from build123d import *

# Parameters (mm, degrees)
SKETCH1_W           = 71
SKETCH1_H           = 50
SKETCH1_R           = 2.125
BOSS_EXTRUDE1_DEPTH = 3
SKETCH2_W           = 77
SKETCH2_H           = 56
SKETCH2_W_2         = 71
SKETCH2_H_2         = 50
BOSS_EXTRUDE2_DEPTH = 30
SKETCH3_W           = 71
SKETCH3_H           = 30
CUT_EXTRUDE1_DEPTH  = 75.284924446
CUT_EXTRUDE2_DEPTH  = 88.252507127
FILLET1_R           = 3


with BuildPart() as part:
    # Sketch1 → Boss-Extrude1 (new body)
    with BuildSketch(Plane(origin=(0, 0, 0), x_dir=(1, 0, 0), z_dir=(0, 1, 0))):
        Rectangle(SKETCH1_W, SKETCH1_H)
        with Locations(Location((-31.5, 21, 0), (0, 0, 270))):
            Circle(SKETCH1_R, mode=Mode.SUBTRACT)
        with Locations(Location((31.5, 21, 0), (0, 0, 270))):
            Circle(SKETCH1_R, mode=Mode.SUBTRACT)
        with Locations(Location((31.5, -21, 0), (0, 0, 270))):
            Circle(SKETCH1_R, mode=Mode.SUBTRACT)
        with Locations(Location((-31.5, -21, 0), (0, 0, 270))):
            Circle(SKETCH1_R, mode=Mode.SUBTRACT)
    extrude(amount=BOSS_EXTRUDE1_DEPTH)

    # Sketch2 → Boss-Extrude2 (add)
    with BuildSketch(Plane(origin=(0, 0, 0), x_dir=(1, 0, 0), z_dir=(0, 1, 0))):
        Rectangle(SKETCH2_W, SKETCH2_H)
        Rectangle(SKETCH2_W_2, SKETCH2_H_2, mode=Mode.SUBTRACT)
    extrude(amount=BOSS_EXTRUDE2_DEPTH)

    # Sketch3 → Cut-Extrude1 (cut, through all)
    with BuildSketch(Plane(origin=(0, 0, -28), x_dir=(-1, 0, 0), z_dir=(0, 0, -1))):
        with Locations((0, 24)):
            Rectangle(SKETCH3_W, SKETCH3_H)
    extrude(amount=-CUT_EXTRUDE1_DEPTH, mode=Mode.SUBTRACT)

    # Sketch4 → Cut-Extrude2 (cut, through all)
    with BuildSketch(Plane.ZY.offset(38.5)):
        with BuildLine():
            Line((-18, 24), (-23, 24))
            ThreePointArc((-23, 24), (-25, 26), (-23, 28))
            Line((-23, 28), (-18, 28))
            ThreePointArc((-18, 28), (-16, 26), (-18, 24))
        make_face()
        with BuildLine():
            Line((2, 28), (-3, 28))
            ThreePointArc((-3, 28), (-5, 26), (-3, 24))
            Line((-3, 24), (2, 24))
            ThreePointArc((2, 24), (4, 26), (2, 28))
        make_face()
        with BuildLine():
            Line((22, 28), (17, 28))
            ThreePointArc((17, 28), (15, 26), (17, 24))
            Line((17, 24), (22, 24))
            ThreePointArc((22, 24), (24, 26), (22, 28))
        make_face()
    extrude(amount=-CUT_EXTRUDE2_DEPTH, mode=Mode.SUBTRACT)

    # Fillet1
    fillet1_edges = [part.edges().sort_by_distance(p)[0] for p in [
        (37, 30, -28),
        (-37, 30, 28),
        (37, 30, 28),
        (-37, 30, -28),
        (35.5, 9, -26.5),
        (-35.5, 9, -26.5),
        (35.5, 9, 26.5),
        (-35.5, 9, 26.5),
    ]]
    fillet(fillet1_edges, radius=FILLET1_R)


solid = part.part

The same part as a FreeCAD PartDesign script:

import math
import FreeCAD as App
import Part
import Sketcher
from FreeCAD import Vector


def edges_at(feature, points):
    """Names of the edges that pass closest to the given points."""
    edges = feature.Shape.Edges
    near = lambda p: min(range(len(edges)), key=lambda i: edges[i].distToShape(Part.Vertex(*p))[0])
    return sorted({f"Edge{near(p) + 1}" for p in points})


def add_polygon(sketch, points):
    """Adds a closed chain of lines whose ends are joined by coincident constraints."""
    first, n = sketch.GeometryCount, len(points)
    for a, b in zip(points, points[1:] + points[:1]):
        sketch.addGeometry(Part.LineSegment(App.Vector(*a, 0), App.Vector(*b, 0)), False)
    for i in range(n):
        sketch.addConstraint(Sketcher.Constraint("Coincident", first + i, 2, first + (i + 1) % n, 1))

doc = App.newDocument("Part")
params = doc.addObject("Spreadsheet::Sheet", "Params")
for row, (alias, value) in enumerate([
    ("sketch1_diameter", "4.25 mm"),
    ("sketch1_width", "71 mm"),
    ("sketch1_height", "50 mm"),
    ("pad1_length", "3 mm"),
    ("sketch2_width", "77 mm"),
    ("sketch2_width2", "71 mm"),
    ("sketch2_height", "56 mm"),
    ("sketch2_height2", "50 mm"),
    ("pad2_length", "30 mm"),
    ("sketch3_width", "71 mm"),
    ("sketch3_height", "30 mm"),
    ("sketch4_radius", "2 mm"),
    ("sketch4_height", "5 mm"),
    ("fillet_radius", "3 mm"),
], start=1):
    params.set(f"A{row}", alias)
    params.set(f"B{row}", "=" + value)
    params.setAlias(f"B{row}", alias)

body = doc.addObject("PartDesign::Body", "Body")

sketch1 = body.newObject("Sketcher::SketchObject", "Sketch")
sketch1.AttachmentSupport = (doc.getObject("XZ_Plane"), [""])
sketch1.MapMode = "FlatFace"
add_polygon(sketch1, [(-35.5, -25), (-35.5, 25), (35.5, 25), (35.5, -25)])
sketch1.addGeometry(Part.Circle(Vector(-31.5, 21, 0), Vector(0, 0, 1), 2.125), False)
sketch1.addGeometry(Part.Circle(Vector(31.5, 21, 0), Vector(0, 0, 1), 2.125), False)
sketch1.addGeometry(Part.Circle(Vector(-31.5, -21, 0), Vector(0, 0, 1), 2.125), False)
sketch1.addGeometry(Part.Circle(Vector(31.5, -21, 0), Vector(0, 0, 1), 2.125), False)
sketch1.addConstraint([
    Sketcher.Constraint("Vertical", 0),
    Sketcher.Constraint("Horizontal", 1),
    Sketcher.Constraint("Vertical", 2),
    Sketcher.Constraint("Horizontal", 3),
    Sketcher.Constraint("Equal", 4, 5),
    Sketcher.Constraint("Equal", 5, 6),
    Sketcher.Constraint("Equal", 6, 7),
    Sketcher.Constraint("Symmetric", 5, 3, 6, 3, -1, 1),
    Sketcher.Constraint("Symmetric", 4, 3, 7, 3, -1, 1),
    Sketcher.Constraint("Symmetric", 0, 2, 2, 2, -1, 1),
    Sketcher.Constraint("Symmetric", 4, 3, 5, 3, -2),
    Sketcher.Constraint("Diameter", 4, 4.25),
    Sketcher.Constraint("DistanceX", 1, 1, 1, 2, 71.0),
    Sketcher.Constraint("DistanceY", 0, 1, 0, 2, 50.0),
    Sketcher.Constraint("DistanceY", -1, 1, 4, 3, 21.0),
    Sketcher.Constraint("DistanceX", 4, 3, 5, 3, 63.0),
])
sketch1.setExpression("Constraints[15]", "Params.sketch1_diameter")
sketch1.setExpression("Constraints[16]", "Params.sketch1_width")
sketch1.setExpression("Constraints[17]", "Params.sketch1_height")
pad1 = body.newObject("PartDesign::Pad", "Pad")
pad1.Profile = sketch1
pad1.setExpression("Length", "Params.pad1_length")
pad1.Reversed = True

sketch2 = body.newObject("Sketcher::SketchObject", "Sketch001")
sketch2.AttachmentSupport = (doc.getObject("XZ_Plane"), [""])
sketch2.MapMode = "FlatFace"
add_polygon(sketch2, [(-38.5, -28), (-38.5, 28), (38.5, 28), (38.5, -28)])
add_polygon(sketch2, [(35.5, 25), (-35.5, 25), (-35.5, -25), (35.5, -25)])
sketch2.addConstraint([
    Sketcher.Constraint("Vertical", 0),
    Sketcher.Constraint("Horizontal", 1),
    Sketcher.Constraint("Vertical", 2),
    Sketcher.Constraint("Horizontal", 3),
    Sketcher.Constraint("Horizontal", 4),
    Sketcher.Constraint("Vertical", 5),
    Sketcher.Constraint("Horizontal", 6),
    Sketcher.Constraint("Vertical", 7),
    Sketcher.Constraint("Symmetric", 0, 2, 2, 2, -1, 1),
    Sketcher.Constraint("Symmetric", 4, 2, 6, 2, -1, 1),
    Sketcher.Constraint("DistanceX", 1, 1, 1, 2, 77.0),
    Sketcher.Constraint("DistanceX", 4, 2, 4, 1, 71.0),
    Sketcher.Constraint("DistanceY", 0, 1, 0, 2, 56.0),
    Sketcher.Constraint("DistanceY", 5, 2, 5, 1, 50.0),
])
sketch2.setExpression("Constraints[18]", "Params.sketch2_width")
sketch2.setExpression("Constraints[19]", "Params.sketch2_width2")
sketch2.setExpression("Constraints[20]", "Params.sketch2_height")
sketch2.setExpression("Constraints[21]", "Params.sketch2_height2")
pad2 = body.newObject("PartDesign::Pad", "Pad001")
pad2.Profile = sketch2
pad2.setExpression("Length", "Params.pad2_length")
pad2.Reversed = True

sketch3 = body.newObject("Sketcher::SketchObject", "Sketch002")
sketch3.AttachmentSupport = (doc.getObject("XY_Plane"), [""])
sketch3.MapMode = "FlatFace"
sketch3.AttachmentOffset = App.Placement(Vector(0, 0, -28), App.Rotation())
add_polygon(sketch3, [(35.5, 39), (35.5, 9), (-35.5, 9), (-35.5, 39)])
sketch3.addConstraint([
    Sketcher.Constraint("Vertical", 0),
    Sketcher.Constraint("Horizontal", 1),
    Sketcher.Constraint("Vertical", 2),
    Sketcher.Constraint("Horizontal", 3),
    Sketcher.Constraint("DistanceX", 1, 2, 1, 1, 71.0),
    Sketcher.Constraint("DistanceY", 0, 2, 0, 1, 30.0),
    Sketcher.Constraint("DistanceY", -1, 1, 0, 2, 9.0),
    Sketcher.Constraint("DistanceX", -1, 1, 0, 2, 35.5),
])
sketch3.setExpression("Constraints[8]", "Params.sketch3_width")
sketch3.setExpression("Constraints[9]", "Params.sketch3_height")
pocket1 = body.newObject("PartDesign::Pocket", "Pocket")
pocket1.Profile = sketch3
pocket1.Type = "ThroughAll"
pocket1.Reversed = True

sketch4 = body.newObject("Sketcher::SketchObject", "Sketch003")
sketch4.AttachmentSupport = (doc.getObject("YZ_Plane"), [""])
sketch4.MapMode = "FlatFace"
sketch4.AttachmentOffset = App.Placement(Vector(0, 0, -38.5), App.Rotation())
sketch4.addGeometry([
    Part.LineSegment(Vector(24, -23, 0), Vector(24, -18, 0)),
    Part.ArcOfCircle(Part.Circle(Vector(26, -18, 0), Vector(0, 0, 1), 2), math.radians(0), math.radians(180)),
    Part.LineSegment(Vector(28, -18, 0), Vector(28, -23, 0)),
    Part.ArcOfCircle(Part.Circle(Vector(26, -23, 0), Vector(0, 0, 1), 2), math.radians(180), math.radians(360)),
    Part.LineSegment(Vector(28, 2, 0), Vector(28, -3, 0)),
    Part.ArcOfCircle(Part.Circle(Vector(26, -3, 0), Vector(0, 0, 1), 2), math.radians(180), math.radians(360)),
    Part.LineSegment(Vector(24, -3, 0), Vector(24, 2, 0)),
    Part.ArcOfCircle(Part.Circle(Vector(26, 2, 0), Vector(0, 0, 1), 2), math.radians(0), math.radians(180)),
    Part.LineSegment(Vector(28, 22, 0), Vector(28, 17, 0)),
    Part.ArcOfCircle(Part.Circle(Vector(26, 17, 0), Vector(0, 0, 1), 2), math.radians(180), math.radians(360)),
    Part.LineSegment(Vector(24, 17, 0), Vector(24, 22, 0)),
    Part.ArcOfCircle(Part.Circle(Vector(26, 22, 0), Vector(0, 0, 1), 2), math.radians(0), math.radians(180)),
], False)
sketch4.addConstraint([
    Sketcher.Constraint("Tangent", 0, 2, 1, 2),
    Sketcher.Constraint("Tangent", 1, 1, 2, 1),
    Sketcher.Constraint("Tangent", 2, 2, 3, 2),
    Sketcher.Constraint("Tangent", 3, 1, 0, 1),
    Sketcher.Constraint("Tangent", 4, 2, 5, 2),
    Sketcher.Constraint("Tangent", 5, 1, 6, 1),
    Sketcher.Constraint("Tangent", 6, 2, 7, 2),
    Sketcher.Constraint("Tangent", 7, 1, 4, 1),
    Sketcher.Constraint("Tangent", 8, 2, 9, 2),
    Sketcher.Constraint("Tangent", 9, 1, 10, 1),
    Sketcher.Constraint("Tangent", 10, 2, 11, 2),
    Sketcher.Constraint("Tangent", 11, 1, 8, 1),
    Sketcher.Constraint("Vertical", 0),
    Sketcher.Constraint("Vertical", 2),
    Sketcher.Constraint("Vertical", 4),
    Sketcher.Constraint("Vertical", 6),
    Sketcher.Constraint("Vertical", 8),
    Sketcher.Constraint("Vertical", 10),
    Sketcher.Constraint("Equal", 3, 5),
    Sketcher.Constraint("Equal", 7, 9),
    Sketcher.Constraint("Vertical", 3, 3, 5, 3),
    Sketcher.Constraint("Vertical", 7, 3, 9, 3),
    Sketcher.Constraint("Equal", 2, 4),
    Sketcher.Constraint("Equal", 6, 8),
    Sketcher.Constraint("Radius", 1, 2.0),
    Sketcher.Constraint("DistanceY", 0, 1, 0, 2, 5.0),
    Sketcher.Constraint("DistanceX", -1, 1, 1, 3, 26.0),
    Sketcher.Constraint("DistanceY", 1, 3, -1, 1, 18.0),
    Sketcher.Constraint("DistanceY", 5, 3, -1, 1, 3.0),
    Sketcher.Constraint("DistanceY", -1, 1, 9, 3, 17.0),
])
sketch4.setExpression("Constraints[24]", "Params.sketch4_radius")
sketch4.setExpression("Constraints[25]", "Params.sketch4_height")
pocket2 = body.newObject("PartDesign::Pocket", "Pocket001")
pocket2.Profile = sketch4
pocket2.Type = "ThroughAll"
pocket2.Reversed = True
doc.recompute()

fillet = body.newObject("PartDesign::Fillet", "Fillet")
fillet.Base = (pocket2, edges_at(pocket2, [
    (37, 30, -28),
    (-37, 30, 28),
    (37, 30, 28),
    (-37, 30, -28),
    (35.5, 9, -26.5),
    (-35.5, 9, -26.5),
    (35.5, 9, 26.5),
    (-35.5, 9, 26.5),
]))
fillet.setExpression("Radius", "Params.fillet_radius")

doc.recompute()
